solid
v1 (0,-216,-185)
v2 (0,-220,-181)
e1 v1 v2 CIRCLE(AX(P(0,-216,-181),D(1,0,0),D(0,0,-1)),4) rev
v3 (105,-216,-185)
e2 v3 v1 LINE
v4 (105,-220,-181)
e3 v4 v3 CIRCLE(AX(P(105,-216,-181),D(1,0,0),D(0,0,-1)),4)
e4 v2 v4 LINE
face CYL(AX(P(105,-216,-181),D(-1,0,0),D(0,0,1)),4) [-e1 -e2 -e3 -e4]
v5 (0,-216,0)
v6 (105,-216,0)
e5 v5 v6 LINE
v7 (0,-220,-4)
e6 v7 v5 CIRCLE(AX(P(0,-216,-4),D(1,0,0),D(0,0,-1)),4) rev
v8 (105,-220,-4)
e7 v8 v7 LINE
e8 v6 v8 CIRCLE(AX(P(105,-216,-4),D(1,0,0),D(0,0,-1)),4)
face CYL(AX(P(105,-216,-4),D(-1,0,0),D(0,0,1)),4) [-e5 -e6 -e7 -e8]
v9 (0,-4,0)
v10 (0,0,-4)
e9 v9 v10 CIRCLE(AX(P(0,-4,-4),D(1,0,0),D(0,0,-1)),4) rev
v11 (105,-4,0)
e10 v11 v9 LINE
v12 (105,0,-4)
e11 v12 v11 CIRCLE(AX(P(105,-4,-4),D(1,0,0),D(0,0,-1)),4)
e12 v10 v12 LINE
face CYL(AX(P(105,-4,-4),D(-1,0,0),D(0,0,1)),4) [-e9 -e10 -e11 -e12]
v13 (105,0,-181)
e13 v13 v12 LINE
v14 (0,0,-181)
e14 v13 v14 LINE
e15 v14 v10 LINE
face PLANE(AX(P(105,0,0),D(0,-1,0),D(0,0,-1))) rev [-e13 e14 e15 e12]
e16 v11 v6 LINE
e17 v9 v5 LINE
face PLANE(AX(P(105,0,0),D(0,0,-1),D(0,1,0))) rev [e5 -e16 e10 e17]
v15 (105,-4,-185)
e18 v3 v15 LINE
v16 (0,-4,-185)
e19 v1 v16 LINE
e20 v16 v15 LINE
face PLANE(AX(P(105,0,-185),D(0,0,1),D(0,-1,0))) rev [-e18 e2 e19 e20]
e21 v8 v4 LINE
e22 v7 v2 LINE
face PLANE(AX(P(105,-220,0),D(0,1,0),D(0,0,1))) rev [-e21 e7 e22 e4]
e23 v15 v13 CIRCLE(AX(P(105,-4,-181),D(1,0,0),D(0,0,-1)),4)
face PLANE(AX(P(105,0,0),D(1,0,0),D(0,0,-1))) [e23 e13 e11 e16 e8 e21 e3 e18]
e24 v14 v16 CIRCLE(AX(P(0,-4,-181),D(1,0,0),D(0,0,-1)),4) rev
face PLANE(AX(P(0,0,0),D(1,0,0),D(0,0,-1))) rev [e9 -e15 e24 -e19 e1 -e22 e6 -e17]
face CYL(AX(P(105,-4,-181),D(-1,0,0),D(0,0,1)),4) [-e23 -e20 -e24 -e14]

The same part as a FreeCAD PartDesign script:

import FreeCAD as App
import Part
import Sketcher


def edges_at(feature, points):
    """Names of the edges that pass closest to the given points."""
    edges = feature.Shape.Edges
    near = lambda p: min(range(len(edges)), key=lambda i: edges[i].distToShape(Part.Vertex(*p))[0])
    return sorted({f"Edge{near(p) + 1}" for p in points})


def add_polygon(sketch, points):
    """Adds a closed chain of lines whose ends are joined by coincident constraints."""
    first, n = sketch.GeometryCount, len(points)
    for a, b in zip(points, points[1:] + points[:1]):
        sketch.addGeometry(Part.LineSegment(App.Vector(*a, 0), App.Vector(*b, 0)), False)
    for i in range(n):
        sketch.addConstraint(Sketcher.Constraint("Coincident", first + i, 2, first + (i + 1) % n, 1))

doc = App.newDocument("Part")
params = doc.addObject("Spreadsheet::Sheet", "Params")
for row, (alias, value) in enumerate([
    ("sketch1_width", "220 mm"),
    ("sketch1_height", "185 mm"),
    ("pad1_length", "105 mm"),
    ("fillet_radius", "4 mm"),
], start=1):
    params.set(f"A{row}", alias)
    params.set(f"B{row}", "=" + value)
    params.setAlias(f"B{row}", alias)

body = doc.addObject("PartDesign::Body", "Body")

sketch1 = doc.addObject("Sketcher::SketchObject", "Sketch")
body.addObject(sketch1)
sketch1.AttachmentSupport = (doc.YZ_Plane, [""])
sketch1.MapMode = "FlatFace"
add_polygon(sketch1, [(0, 0), (-220, 0), (-220, -185), (0, -185)])
sketch1.addConstraint([
    Sketcher.Constraint("Horizontal", 0),
    Sketcher.Constraint("Vertical", 1),
    Sketcher.Constraint("Horizontal", 2),
    Sketcher.Constraint("Vertical", 3),
    Sketcher.Constraint("Coincident", 3, 2, -1, 1),
    Sketcher.Constraint("DistanceX", 0, 2, 0, 1, 220.0),
    Sketcher.Constraint("DistanceY", 1, 2, 1, 1, 185.0),
])
sketch1.setExpression("Constraints[9]", "Params.sketch1_width")
sketch1.setExpression("Constraints[10]", "Params.sketch1_height")
pad1 = doc.addObject("PartDesign::Pad", "Pad")
body.addObject(pad1)
pad1.Profile = sketch1
pad1.setExpression("Length", "Params.pad1_length")
doc.recompute()

fillet = doc.addObject("PartDesign::Fillet", "Fillet")
body.addObject(fillet)
fillet.Base = (pad1, edges_at(pad1, [
    (52.5, 0, 0),
    (52.5, 0, -185),
    (52.5, -220, -185),
    (52.5, -220, 0),
]))
fillet.setExpression("Radius", "Params.fillet_radius")

doc.recompute()
